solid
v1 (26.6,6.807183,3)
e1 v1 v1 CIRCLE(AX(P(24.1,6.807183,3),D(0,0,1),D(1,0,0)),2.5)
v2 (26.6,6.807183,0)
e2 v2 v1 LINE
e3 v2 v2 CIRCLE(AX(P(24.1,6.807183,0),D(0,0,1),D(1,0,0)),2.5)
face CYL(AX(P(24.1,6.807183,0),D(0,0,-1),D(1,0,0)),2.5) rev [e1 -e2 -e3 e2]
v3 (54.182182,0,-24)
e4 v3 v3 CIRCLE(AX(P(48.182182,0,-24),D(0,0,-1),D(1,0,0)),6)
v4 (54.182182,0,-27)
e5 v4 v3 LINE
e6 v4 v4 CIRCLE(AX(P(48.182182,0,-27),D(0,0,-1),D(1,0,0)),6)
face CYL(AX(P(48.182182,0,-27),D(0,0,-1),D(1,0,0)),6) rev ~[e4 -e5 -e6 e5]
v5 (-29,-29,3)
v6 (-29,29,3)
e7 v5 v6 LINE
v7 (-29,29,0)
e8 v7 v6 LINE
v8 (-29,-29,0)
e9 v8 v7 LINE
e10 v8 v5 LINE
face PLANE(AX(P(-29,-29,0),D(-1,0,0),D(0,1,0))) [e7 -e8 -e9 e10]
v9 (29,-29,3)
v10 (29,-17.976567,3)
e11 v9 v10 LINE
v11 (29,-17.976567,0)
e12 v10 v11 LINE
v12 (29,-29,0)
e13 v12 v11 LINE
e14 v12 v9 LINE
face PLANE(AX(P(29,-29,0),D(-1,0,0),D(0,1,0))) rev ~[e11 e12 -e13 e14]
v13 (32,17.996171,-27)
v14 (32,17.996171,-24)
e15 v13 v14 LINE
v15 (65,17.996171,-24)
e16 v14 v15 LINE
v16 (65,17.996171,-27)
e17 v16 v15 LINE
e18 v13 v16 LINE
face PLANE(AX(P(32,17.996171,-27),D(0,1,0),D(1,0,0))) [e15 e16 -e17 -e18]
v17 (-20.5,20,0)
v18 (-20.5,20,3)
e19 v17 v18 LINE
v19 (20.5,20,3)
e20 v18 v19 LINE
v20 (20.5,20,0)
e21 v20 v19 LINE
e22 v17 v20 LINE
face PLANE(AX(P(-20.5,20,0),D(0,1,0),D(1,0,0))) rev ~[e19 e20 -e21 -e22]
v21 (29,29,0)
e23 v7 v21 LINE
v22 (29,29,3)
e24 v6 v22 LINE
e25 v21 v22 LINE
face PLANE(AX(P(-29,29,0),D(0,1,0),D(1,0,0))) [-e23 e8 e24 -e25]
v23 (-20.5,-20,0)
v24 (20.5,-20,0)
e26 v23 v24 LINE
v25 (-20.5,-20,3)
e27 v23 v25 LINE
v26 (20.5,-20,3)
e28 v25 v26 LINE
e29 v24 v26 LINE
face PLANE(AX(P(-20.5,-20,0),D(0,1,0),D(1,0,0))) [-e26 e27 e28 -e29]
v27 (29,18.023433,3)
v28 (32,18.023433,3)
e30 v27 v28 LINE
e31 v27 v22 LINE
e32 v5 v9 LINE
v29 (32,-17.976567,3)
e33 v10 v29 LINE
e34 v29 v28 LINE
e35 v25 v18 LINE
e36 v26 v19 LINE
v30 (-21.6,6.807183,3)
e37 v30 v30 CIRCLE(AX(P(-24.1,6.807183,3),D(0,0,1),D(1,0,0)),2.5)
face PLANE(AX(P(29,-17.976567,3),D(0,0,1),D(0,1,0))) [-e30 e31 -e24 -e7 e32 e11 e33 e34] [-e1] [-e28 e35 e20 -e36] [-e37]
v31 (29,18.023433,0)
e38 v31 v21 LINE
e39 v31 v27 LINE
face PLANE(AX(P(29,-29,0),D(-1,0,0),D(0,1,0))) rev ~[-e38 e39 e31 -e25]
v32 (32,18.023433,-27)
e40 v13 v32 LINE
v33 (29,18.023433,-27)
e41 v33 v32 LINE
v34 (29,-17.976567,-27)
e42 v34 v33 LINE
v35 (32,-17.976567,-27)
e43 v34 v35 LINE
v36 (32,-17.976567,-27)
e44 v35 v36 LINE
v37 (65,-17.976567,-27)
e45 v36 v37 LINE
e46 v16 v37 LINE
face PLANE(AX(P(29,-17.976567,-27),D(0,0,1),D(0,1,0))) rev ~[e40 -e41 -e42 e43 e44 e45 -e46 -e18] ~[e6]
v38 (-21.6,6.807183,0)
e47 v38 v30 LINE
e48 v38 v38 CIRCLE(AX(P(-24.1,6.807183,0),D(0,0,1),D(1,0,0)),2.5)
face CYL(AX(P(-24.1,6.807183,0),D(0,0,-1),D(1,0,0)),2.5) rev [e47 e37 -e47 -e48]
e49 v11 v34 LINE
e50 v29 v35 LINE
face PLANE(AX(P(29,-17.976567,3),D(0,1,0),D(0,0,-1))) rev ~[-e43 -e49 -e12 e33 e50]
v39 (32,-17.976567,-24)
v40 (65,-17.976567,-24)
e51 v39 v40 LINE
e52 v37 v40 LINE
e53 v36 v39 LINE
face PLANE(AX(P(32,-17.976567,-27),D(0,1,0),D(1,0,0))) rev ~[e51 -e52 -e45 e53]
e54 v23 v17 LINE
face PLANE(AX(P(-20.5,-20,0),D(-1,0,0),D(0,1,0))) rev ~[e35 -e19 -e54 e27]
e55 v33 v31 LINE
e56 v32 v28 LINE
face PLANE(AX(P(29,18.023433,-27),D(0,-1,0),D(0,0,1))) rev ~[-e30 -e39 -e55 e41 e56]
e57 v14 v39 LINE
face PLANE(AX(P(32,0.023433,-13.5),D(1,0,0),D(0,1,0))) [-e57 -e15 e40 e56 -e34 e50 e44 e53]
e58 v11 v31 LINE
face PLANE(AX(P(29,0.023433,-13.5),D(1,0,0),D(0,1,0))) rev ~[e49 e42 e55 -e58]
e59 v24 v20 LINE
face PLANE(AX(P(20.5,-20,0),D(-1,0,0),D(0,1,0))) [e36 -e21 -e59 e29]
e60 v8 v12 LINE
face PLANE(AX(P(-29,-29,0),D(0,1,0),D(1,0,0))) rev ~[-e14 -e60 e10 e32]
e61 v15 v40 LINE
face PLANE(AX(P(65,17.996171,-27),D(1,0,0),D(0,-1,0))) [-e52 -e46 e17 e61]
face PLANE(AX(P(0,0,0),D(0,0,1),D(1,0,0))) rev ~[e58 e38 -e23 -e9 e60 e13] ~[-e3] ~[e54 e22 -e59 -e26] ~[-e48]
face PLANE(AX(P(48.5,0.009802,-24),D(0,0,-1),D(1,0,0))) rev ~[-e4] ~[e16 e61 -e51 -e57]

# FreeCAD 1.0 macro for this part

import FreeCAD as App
import Part
import Sketcher

V = App.Vector

doc = App.newDocument("Part")
body = doc.addObject("PartDesign::Body", "Body")

sketch1 = doc.addObject("Sketcher::SketchObject", "Sketch")
body.addObject(sketch1)
sketch1.AttachmentSupport = (doc.XY_Plane, [""])
sketch1.MapMode = "FlatFace"
sketch1.addGeometry([
    Part.LineSegment(V(-29, 29, 0), V(-29, -29, 0)),
    Part.LineSegment(V(-29, -29, 0), V(29, -29, 0)),
    Part.LineSegment(V(29, -29, 0), V(29, 29, 0)),
    Part.LineSegment(V(29, 29, 0), V(-29, 29, 0)),
    Part.Circle(V(-24.1, 6.8, 0), V(0, 0, 1), 2.5),
    Part.LineSegment(V(20.5, -20, 0), V(-20.5, -20, 0)),
    Part.LineSegment(V(-20.5, -20, 0), V(-20.5, 20, 0)),
    Part.LineSegment(V(-20.5, 20, 0), V(20.5, 20, 0)),
    Part.LineSegment(V(20.5, 20, 0), V(20.5, -20, 0)),
    Part.Circle(V(24.1, 6.8, 0), V(0, 0, 1), 2.5),
], False)
sketch1.addConstraint([
    Sketcher.Constraint("Coincident", 0, 2, 1, 1),
    Sketcher.Constraint("Coincident", 1, 2, 2, 1),
    Sketcher.Constraint("Coincident", 2, 2, 3, 1),
    Sketcher.Constraint("Coincident", 3, 2, 0, 1),
    Sketcher.Constraint("Coincident", 5, 2, 6, 1),
    Sketcher.Constraint("Coincident", 6, 2, 7, 1),
    Sketcher.Constraint("Coincident", 7, 2, 8, 1),
    Sketcher.Constraint("Coincident", 8, 2, 5, 1),
    Sketcher.Constraint("Vertical", 0),
    Sketcher.Constraint("Horizontal", 1),
    Sketcher.Constraint("Vertical", 2),
    Sketcher.Constraint("Horizontal", 3),
    Sketcher.Constraint("Horizontal", 5),
    Sketcher.Constraint("Vertical", 6),
    Sketcher.Constraint("Horizontal", 7),
    Sketcher.Constraint("Vertical", 8),
    Sketcher.Constraint("Equal", 4, 9),
    Sketcher.Constraint("Symmetric", 0, 2, 2, 2, -1, 1),
    Sketcher.Constraint("Symmetric", 5, 2, 7, 2, -1, 1),
    Sketcher.Constraint("Symmetric", 4, 3, 9, 3, -2),
    Sketcher.Constraint("Equal", 3, 0),
    Sketcher.Constraint("Diameter", 4, 5.0),
    Sketcher.Constraint("DistanceX", 1, 1, 1, 2, 58.0),
    Sketcher.Constraint("DistanceX", 5, 2, 5, 1, 41.0),
    Sketcher.Constraint("DistanceY", 6, 1, 6, 2, 40.0),
    Sketcher.Constraint("DistanceX", 4, 3, -1, 1, 24.1),
    Sketcher.Constraint("DistanceY", -1, 1, 4, 3, 6.807183),
])
pad1 = doc.addObject("PartDesign::Pad", "Pad")
body.addObject(pad1)
pad1.Profile = sketch1
pad1.Length = 3

sketch2 = doc.addObject("Sketcher::SketchObject", "Sketch001")
body.addObject(sketch2)
sketch2.AttachmentSupport = (doc.YZ_Plane, [""])
sketch2.MapMode = "FlatFace"
sketch2.AttachmentOffset = App.Placement(V(0, 0, 29), App.Rotation())
sketch2.addGeometry([
    Part.LineSegment(V(-18, -27, 0), V(18, -27, 0)),
    Part.LineSegment(V(18, -27, 0), V(18, 3, 0)),
    Part.LineSegment(V(18, 3, 0), V(-18, 3, 0)),
    Part.LineSegment(V(-18, 3, 0), V(-18, -27, 0)),
], False)
sketch2.addConstraint([
    Sketcher.Constraint("Coincident", 0, 2, 1, 1),
    Sketcher.Constraint("Coincident", 1, 2, 2, 1),
    Sketcher.Constraint("Coincident", 2, 2, 3, 1),
    Sketcher.Constraint("Coincident", 3, 2, 0, 1),
    Sketcher.Constraint("Horizontal", 0),
    Sketcher.Constraint("Vertical", 1),
    Sketcher.Constraint("Horizontal", 2),
    Sketcher.Constraint("Vertical", 3),
    Sketcher.Constraint("DistanceX", 0, 1, 0, 2, 36.0),
    Sketcher.Constraint("DistanceY", 1, 1, 1, 2, 30.0),
    Sketcher.Constraint("DistanceY", 0, 2, -1, 1, 27.0),
    Sketcher.Constraint("DistanceX", -1, 1, 0, 2, 18.023433),
])
pad2 = doc.addObject("PartDesign::Pad", "Pad001")
body.addObject(pad2)
pad2.Profile = sketch2
pad2.Length = 3

sketch3 = doc.addObject("Sketcher::SketchObject", "Sketch002")
body.addObject(sketch3)
sketch3.AttachmentSupport = (doc.XY_Plane, [""])
sketch3.MapMode = "FlatFace"
sketch3.AttachmentOffset = App.Placement(V(0, 0, -27), App.Rotation())
sketch3.addGeometry([
    Part.LineSegment(V(32, -18, 0), V(32, 18, 0)),
    Part.LineSegment(V(32, 18, 0), V(65, 18, 0)),
    Part.LineSegment(V(65, 18, 0), V(65, -18, 0)),
    Part.LineSegment(V(65, -18, 0), V(32, -18, 0)),
    Part.Circle(V(48, 0, 0), V(0, 0, 1), 6),
], False)
sketch3.addConstraint([
    Sketcher.Constraint("Coincident", 0, 2, 1, 1),
    Sketcher.Constraint("Coincident", 1, 2, 2, 1),
    Sketcher.Constraint("Coincident", 2, 2, 3, 1),
    Sketcher.Constraint("Coincident", 3, 2, 0, 1),
    Sketcher.Constraint("Vertical", 0),
    Sketcher.Constraint("Horizontal", 1),
    Sketcher.Constraint("Vertical", 2),
    Sketcher.Constraint("Horizontal", 3),
    Sketcher.Constraint("PointOnObject", 4, 3, -1),
    Sketcher.Constraint("Diameter", 4, 12.0),
    Sketcher.Constraint("DistanceX", 1, 1, 1, 2, 33.0),
    Sketcher.Constraint("DistanceX", -1, 1, 0, 2, 32.0),
    Sketcher.Constraint("DistanceY", 0, 1, 0, 2, 35.972737),
    Sketcher.Constraint("DistanceX", -1, 1, 4, 3, 48.182182),
    Sketcher.Constraint("DistanceY", -1, 1, 0, 2, 17.996171),
])
pad3 = doc.addObject("PartDesign::Pad", "Pad002")
body.addObject(pad3)
pad3.Profile = sketch3
pad3.Length = 3

doc.recompute()
